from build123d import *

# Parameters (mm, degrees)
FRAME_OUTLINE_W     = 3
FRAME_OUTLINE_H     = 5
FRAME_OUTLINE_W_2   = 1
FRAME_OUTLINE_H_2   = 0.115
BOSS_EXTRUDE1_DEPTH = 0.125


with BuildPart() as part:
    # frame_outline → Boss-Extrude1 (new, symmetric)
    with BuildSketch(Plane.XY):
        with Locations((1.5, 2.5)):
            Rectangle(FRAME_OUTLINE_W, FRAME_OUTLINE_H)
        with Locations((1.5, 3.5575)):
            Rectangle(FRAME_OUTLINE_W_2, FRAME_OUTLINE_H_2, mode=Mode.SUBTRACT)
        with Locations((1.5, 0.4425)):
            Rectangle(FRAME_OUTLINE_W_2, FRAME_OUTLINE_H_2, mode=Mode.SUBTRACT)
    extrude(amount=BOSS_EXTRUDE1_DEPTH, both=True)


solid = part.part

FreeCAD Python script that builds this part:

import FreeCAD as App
import Part
import Sketcher

V = App.Vector
Q = App.Units.Quantity


def add_polygon(sketch, points):
    """Adds a closed chain of lines whose ends are joined by coincident constraints."""
    first, n = sketch.GeometryCount, len(points)
    for a, b in zip(points, points[1:] + points[:1]):
        sketch.addGeometry(Part.LineSegment(App.Vector(*a, 0), App.Vector(*b, 0)), False)
    for i in range(n):
        sketch.addConstraint(Sketcher.Constraint("Coincident", first + i, 2, first + (i + 1) % n, 1))

doc = App.newDocument("Part")
body = doc.addObject("PartDesign::Body", "Body")

# Sketch on XY plane
sketch1 = doc.addObject("Sketcher::SketchObject", "Sketch")
body.addObject(sketch1)
sketch1.AttachmentSupport = (doc.XY_Plane, [""])
sketch1.MapMode = "FlatFace"
add_polygon(sketch1, [(0, 5), (0, 0), (3, 0), (3, 5)])  # lines 0-3
add_polygon(sketch1, [(2, 0.39), (1, 0.39), (1, 0.5), (2, 0.5)])  # lines 4-7
add_polygon(sketch1, [(2, 3.5), (1, 3.5), (1, 3.62), (2, 3.62)])  # lines 8-11
sketch1.addConstraint([
    Sketcher.Constraint("Vertical", 0),
    Sketcher.Constraint("Horizontal", 1),
    Sketcher.Constraint("Vertical", 2),
    Sketcher.Constraint("Horizontal", 3),
    Sketcher.Constraint("Horizontal", 4),
    Sketcher.Constraint("Vertical", 5),
    Sketcher.Constraint("Horizontal", 6),
    Sketcher.Constraint("Vertical", 7),
    Sketcher.Constraint("Horizontal", 8),
    Sketcher.Constraint("Vertical", 9),
    Sketcher.Constraint("Horizontal", 10),
    Sketcher.Constraint("Vertical", 11),
    Sketcher.Constraint("Coincident", 0, 2, -1, 1),
    Sketcher.Constraint("Vertical", 5, 2, 8, 2),
    Sketcher.Constraint("Vertical", 7, 2, 10, 2),
    Sketcher.Constraint("Equal", 7, 9),
    Sketcher.Constraint("DistanceX", 1, 1, 1, 2, Q("3 mm")),
    Sketcher.Constraint("DistanceX", 4, 2, 4, 1, Q("1 mm")),
    Sketcher.Constraint("DistanceY", 0, 2, 0, 1, Q("5 mm")),
    Sketcher.Constraint("DistanceX", -1, 1, 4, 2, Q("1 mm")),
    Sketcher.Constraint("DistanceY", 5, 2, 8, 2, Q("3 mm")),
    Sketcher.Constraint("DistanceY", -1, 1, 5, 2, Q("0.5 mm")),
    Sketcher.Constraint("DistanceY", 5, 1, 5, 2, Q("0.115 mm")),
])
pad1 = doc.addObject("PartDesign::Pad", "Pad")
body.addObject(pad1)
pad1.Profile = sketch1
pad1.Length = 0.25
pad1.Midplane = True

doc.recompute()
